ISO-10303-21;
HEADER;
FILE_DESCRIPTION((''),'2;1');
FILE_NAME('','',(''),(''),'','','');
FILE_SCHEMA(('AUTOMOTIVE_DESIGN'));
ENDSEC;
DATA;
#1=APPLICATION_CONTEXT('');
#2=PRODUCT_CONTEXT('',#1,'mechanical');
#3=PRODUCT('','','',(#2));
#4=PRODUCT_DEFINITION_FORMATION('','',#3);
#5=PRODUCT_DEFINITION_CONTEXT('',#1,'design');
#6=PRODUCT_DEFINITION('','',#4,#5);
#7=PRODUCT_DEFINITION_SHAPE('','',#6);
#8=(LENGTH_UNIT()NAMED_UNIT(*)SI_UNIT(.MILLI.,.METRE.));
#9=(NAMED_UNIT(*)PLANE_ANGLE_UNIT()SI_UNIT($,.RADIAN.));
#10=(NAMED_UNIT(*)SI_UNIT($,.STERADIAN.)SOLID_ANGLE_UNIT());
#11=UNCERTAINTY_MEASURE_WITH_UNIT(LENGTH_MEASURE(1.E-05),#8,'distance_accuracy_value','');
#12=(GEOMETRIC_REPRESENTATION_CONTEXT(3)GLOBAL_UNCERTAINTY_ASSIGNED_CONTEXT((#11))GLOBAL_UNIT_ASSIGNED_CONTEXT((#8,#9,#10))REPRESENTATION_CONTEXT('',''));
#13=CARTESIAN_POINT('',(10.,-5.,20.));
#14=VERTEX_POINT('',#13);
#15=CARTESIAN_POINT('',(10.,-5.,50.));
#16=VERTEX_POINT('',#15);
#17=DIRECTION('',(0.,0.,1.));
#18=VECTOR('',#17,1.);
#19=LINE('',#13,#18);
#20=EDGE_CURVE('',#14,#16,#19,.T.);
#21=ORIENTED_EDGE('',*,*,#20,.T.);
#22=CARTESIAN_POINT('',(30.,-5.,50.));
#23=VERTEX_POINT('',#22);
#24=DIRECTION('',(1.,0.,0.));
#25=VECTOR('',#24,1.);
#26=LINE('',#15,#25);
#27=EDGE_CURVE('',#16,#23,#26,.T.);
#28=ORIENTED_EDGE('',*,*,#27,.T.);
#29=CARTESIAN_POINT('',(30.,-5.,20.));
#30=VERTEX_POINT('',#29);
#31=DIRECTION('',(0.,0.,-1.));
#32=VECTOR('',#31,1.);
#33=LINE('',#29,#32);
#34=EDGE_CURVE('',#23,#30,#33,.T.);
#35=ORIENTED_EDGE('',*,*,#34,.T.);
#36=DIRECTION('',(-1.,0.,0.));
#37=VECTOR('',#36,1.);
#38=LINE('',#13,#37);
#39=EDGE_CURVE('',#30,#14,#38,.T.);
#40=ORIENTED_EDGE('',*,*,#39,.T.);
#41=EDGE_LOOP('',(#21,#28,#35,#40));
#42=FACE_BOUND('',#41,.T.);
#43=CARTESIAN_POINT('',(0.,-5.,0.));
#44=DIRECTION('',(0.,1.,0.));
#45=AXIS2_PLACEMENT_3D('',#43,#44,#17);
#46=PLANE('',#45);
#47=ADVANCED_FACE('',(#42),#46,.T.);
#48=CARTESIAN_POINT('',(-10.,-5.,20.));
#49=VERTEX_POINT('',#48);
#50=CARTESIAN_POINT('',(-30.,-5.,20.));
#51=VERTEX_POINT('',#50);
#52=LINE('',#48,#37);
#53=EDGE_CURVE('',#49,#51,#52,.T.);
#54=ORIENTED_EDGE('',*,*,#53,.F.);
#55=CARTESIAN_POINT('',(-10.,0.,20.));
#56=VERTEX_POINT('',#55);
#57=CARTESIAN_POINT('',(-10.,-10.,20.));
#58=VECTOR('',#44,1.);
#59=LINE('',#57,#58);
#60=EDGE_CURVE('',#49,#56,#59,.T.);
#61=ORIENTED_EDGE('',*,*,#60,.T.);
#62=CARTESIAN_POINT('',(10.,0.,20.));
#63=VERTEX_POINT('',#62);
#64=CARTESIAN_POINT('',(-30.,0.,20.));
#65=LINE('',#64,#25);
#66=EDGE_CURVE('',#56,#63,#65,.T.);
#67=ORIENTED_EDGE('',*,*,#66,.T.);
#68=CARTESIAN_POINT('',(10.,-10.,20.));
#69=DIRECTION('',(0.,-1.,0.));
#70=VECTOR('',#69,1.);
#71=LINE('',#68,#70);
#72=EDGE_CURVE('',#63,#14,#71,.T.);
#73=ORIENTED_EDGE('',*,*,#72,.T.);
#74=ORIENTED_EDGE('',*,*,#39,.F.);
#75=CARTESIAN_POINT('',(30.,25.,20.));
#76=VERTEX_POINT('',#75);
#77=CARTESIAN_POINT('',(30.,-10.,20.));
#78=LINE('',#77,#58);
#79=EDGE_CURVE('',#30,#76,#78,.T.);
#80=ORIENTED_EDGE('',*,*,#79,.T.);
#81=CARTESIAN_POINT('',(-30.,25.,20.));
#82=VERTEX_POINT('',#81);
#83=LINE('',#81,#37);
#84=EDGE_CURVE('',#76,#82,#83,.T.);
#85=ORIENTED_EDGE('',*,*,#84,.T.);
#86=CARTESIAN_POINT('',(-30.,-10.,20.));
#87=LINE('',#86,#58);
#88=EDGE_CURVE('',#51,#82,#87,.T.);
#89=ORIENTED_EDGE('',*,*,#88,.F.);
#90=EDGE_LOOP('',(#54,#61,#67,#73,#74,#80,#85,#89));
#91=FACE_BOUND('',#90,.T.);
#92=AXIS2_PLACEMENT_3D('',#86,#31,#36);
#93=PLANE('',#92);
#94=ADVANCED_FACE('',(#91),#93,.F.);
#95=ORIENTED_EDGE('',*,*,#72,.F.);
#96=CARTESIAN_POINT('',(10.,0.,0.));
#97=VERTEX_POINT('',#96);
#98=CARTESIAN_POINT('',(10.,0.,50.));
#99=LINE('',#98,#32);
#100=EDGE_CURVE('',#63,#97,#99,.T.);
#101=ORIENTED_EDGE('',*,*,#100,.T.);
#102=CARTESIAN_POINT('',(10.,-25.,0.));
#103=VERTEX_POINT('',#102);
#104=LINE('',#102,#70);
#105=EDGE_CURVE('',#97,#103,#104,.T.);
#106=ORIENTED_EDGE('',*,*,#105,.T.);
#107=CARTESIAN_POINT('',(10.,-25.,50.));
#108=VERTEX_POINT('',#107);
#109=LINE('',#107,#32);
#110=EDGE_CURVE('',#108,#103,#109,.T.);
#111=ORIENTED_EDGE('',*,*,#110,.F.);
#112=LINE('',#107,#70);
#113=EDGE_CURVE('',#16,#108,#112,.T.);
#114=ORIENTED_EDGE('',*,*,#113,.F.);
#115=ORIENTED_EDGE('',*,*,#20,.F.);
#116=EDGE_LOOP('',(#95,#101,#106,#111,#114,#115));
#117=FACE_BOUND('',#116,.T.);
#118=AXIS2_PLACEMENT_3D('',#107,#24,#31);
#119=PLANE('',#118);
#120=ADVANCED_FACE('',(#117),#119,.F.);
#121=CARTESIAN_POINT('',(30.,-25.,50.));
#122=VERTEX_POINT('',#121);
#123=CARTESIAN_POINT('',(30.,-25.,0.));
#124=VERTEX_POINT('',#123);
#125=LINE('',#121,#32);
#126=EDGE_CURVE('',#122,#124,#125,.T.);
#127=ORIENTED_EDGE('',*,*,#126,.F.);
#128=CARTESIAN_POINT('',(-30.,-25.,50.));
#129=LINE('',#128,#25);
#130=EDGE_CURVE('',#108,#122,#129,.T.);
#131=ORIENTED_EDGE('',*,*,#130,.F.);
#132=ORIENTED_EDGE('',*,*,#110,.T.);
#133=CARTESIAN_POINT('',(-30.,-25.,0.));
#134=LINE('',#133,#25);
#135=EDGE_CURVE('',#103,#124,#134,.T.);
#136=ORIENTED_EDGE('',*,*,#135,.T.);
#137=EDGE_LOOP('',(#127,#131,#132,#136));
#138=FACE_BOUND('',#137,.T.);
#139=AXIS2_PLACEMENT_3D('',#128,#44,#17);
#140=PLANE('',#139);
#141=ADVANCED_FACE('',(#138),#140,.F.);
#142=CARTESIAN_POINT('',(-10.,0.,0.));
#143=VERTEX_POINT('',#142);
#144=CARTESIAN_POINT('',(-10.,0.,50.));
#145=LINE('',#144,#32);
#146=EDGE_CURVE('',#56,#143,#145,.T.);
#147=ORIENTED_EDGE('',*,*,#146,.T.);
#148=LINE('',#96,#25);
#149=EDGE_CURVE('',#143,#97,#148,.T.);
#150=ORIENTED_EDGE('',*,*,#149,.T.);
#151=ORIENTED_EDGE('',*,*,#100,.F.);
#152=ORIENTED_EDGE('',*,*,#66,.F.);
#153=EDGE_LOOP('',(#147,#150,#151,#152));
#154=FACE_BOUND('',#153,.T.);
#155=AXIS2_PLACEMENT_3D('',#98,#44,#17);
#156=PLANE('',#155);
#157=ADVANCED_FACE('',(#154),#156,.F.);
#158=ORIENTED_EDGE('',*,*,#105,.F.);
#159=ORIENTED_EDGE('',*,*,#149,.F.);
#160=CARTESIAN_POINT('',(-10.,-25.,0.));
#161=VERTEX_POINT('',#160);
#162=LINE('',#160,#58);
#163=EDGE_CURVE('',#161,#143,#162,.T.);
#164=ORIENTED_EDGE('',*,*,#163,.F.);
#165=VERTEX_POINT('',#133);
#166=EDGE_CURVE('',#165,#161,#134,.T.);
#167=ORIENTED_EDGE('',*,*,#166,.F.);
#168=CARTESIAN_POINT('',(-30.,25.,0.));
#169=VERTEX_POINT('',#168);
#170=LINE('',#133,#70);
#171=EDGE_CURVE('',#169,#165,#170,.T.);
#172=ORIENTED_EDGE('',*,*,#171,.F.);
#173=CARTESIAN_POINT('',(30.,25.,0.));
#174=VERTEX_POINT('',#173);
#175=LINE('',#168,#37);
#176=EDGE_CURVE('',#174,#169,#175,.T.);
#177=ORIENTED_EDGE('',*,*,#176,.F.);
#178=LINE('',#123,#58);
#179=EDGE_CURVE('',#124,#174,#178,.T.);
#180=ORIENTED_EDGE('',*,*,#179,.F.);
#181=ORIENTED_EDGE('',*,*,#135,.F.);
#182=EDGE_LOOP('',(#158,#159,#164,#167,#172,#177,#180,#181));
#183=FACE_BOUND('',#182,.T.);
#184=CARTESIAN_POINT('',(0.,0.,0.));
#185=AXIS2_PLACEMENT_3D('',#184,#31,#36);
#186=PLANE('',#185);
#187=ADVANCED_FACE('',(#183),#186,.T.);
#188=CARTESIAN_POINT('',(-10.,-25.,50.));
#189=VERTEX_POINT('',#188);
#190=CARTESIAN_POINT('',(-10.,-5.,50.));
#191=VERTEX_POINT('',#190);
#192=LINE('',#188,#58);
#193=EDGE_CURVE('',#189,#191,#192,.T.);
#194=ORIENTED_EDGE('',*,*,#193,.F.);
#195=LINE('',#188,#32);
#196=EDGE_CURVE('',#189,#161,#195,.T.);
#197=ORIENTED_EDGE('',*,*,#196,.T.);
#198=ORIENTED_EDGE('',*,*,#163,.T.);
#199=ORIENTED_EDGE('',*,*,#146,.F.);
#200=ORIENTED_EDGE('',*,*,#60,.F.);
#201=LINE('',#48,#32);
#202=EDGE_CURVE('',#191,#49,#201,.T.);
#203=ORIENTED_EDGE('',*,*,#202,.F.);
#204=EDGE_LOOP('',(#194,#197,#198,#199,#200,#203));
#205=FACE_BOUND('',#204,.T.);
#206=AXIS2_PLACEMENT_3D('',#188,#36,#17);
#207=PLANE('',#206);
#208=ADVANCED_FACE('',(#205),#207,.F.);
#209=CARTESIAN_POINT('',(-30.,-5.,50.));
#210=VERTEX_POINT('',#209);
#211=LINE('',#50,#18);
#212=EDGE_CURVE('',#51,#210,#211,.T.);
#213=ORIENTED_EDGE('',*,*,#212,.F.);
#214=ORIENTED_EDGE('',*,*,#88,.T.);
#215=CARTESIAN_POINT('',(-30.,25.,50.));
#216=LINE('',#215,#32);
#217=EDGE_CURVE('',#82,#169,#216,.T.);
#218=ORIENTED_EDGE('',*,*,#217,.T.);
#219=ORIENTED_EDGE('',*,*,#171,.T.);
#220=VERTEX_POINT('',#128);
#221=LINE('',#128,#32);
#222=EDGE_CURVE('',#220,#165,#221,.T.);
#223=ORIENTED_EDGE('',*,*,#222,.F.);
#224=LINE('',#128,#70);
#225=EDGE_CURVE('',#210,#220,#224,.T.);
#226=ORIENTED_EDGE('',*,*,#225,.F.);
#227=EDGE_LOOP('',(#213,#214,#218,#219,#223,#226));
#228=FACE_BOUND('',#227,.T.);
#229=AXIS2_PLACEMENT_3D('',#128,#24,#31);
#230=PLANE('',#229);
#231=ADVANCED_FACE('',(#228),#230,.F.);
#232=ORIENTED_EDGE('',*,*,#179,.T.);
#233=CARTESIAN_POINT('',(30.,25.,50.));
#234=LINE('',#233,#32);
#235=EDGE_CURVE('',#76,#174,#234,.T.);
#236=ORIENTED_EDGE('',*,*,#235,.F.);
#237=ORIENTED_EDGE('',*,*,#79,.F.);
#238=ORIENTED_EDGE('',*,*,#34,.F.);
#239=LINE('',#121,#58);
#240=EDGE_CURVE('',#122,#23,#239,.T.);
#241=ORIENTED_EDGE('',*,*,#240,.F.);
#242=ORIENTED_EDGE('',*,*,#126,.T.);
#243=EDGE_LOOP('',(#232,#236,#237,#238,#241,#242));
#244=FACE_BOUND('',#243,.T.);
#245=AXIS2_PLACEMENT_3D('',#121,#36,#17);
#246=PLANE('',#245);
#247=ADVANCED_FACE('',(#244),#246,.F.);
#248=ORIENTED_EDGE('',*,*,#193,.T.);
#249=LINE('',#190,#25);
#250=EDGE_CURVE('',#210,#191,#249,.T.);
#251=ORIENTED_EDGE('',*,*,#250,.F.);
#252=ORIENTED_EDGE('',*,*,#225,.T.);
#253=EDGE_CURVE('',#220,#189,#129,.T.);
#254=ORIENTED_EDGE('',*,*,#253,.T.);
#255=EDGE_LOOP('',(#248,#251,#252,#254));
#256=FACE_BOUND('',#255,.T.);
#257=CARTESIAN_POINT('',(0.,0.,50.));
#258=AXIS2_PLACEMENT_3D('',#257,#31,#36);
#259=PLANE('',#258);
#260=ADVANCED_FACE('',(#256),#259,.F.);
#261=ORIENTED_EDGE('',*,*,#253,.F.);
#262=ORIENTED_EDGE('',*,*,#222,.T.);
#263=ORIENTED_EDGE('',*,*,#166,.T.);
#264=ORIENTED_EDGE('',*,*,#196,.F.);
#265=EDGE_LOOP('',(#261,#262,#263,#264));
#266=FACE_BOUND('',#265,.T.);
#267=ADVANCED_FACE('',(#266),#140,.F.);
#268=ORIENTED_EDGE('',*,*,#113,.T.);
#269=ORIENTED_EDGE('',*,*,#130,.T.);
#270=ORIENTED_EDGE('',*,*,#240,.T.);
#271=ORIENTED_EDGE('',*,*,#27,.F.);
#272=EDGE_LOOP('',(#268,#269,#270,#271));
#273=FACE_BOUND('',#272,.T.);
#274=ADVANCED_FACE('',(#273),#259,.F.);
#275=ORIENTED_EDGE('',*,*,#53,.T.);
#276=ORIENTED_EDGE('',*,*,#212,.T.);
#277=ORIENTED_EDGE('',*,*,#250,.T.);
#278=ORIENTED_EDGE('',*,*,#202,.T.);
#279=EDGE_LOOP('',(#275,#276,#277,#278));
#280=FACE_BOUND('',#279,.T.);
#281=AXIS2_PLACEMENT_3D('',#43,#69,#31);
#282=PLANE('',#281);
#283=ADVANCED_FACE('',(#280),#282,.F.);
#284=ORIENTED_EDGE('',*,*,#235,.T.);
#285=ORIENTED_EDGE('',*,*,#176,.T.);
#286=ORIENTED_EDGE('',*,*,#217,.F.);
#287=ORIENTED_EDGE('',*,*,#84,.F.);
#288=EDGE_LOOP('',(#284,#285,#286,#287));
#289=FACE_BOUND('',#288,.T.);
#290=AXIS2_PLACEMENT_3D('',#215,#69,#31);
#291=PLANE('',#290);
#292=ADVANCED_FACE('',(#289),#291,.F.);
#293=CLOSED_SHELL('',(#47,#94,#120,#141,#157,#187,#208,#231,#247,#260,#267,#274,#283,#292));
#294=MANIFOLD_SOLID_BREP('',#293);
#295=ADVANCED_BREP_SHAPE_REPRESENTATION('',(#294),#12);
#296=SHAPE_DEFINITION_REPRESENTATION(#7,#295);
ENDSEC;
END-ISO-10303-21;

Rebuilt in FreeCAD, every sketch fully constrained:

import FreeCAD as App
import Part
import Sketcher

V = App.Vector
Q = App.Units.Quantity

doc = App.newDocument("Part")
body = doc.addObject("PartDesign::Body", "Body")

sketch1 = body.newObject("Sketcher::SketchObject", "Sketch")
sketch1.AttachmentSupport = (doc.getObject("XY_Plane"), [""])
sketch1.MapMode = "FlatFace"
sketch1.addGeometry([
    Part.LineSegment(V(-30, 25, 0), V(-30, -25, 0)),
    Part.LineSegment(V(-30, -25, 0), V(30, -25, 0)),
    Part.LineSegment(V(30, -25, 0), V(30, 25, 0)),
    Part.LineSegment(V(30, 25, 0), V(-30, 25, 0)),
], False)
sketch1.addConstraint([
    Sketcher.Constraint("Coincident", 0, 2, 1, 1),
    Sketcher.Constraint("Coincident", 1, 2, 2, 1),
    Sketcher.Constraint("Coincident", 2, 2, 3, 1),
    Sketcher.Constraint("Coincident", 3, 2, 0, 1),
    Sketcher.Constraint("Vertical", 0),
    Sketcher.Constraint("Horizontal", 1),
    Sketcher.Constraint("Vertical", 2),
    Sketcher.Constraint("Horizontal", 3),
    Sketcher.Constraint("Symmetric", 0, 2, 2, 2, -1, 1),
    Sketcher.Constraint("DistanceX", 1, 1, 1, 2, Q("60 mm")),
    Sketcher.Constraint("DistanceY", 0, 2, 0, 1, Q("50 mm")),
])
pad1 = body.newObject("PartDesign::Pad", "Pad")
pad1.Profile = sketch1
pad1.Length = 50

sketch2 = body.newObject("Sketcher::SketchObject", "Sketch001")
sketch2.AttachmentSupport = (doc.getObject("XZ_Plane"), [""])
sketch2.MapMode = "FlatFace"
sketch2.AttachmentOffset = App.Placement(V(0, 0, -25), App.Rotation())
sketch2.addGeometry([
    Part.LineSegment(V(-30, 20, 0), V(-30, 50, 0)),
    Part.LineSegment(V(-30, 50, 0), V(30, 50, 0)),
    Part.LineSegment(V(30, 50, 0), V(30, 20, 0)),
    Part.LineSegment(V(30, 20, 0), V(-30, 20, 0)),
], False)
sketch2.addConstraint([
    Sketcher.Constraint("Coincident", 0, 2, 1, 1),
    Sketcher.Constraint("Coincident", 1, 2, 2, 1),
    Sketcher.Constraint("Coincident", 2, 2, 3, 1),
    Sketcher.Constraint("Coincident", 3, 2, 0, 1),
    Sketcher.Constraint("Vertical", 0),
    Sketcher.Constraint("Horizontal", 1),
    Sketcher.Constraint("Vertical", 2),
    Sketcher.Constraint("Horizontal", 3),
    Sketcher.Constraint("DistanceX", 1, 1, 1, 2, Q("60 mm")),
    Sketcher.Constraint("DistanceY", 0, 1, 0, 2, Q("30 mm")),
    Sketcher.Constraint("DistanceX", 0, 2, -1, 1, Q("30 mm")),
    Sketcher.Constraint("DistanceY", -1, 1, 0, 2, Q("50 mm")),
])
pocket1 = body.newObject("PartDesign::Pocket", "Pocket")
pocket1.Profile = sketch2
pocket1.Length = 35
pocket1.Reversed = True

sketch3 = body.newObject("Sketcher::SketchObject", "Sketch002")
sketch3.AttachmentSupport = (doc.getObject("XY_Plane"), [""])
sketch3.MapMode = "FlatFace"
sketch3.addGeometry([
    Part.LineSegment(V(10, 0, 0), V(10, -25, 0)),
    Part.LineSegment(V(10, -25, 0), V(-10, -25, 0)),
    Part.LineSegment(V(-10, -25, 0), V(-10, 0, 0)),
    Part.LineSegment(V(-10, 0, 0), V(10, 0, 0)),
], False)
sketch3.addConstraint([
    Sketcher.Constraint("Coincident", 0, 2, 1, 1),
    Sketcher.Constraint("Coincident", 1, 2, 2, 1),
    Sketcher.Constraint("Coincident", 2, 2, 3, 1),
    Sketcher.Constraint("Coincident", 3, 2, 0, 1),
    Sketcher.Constraint("Vertical", 0),
    Sketcher.Constraint("Horizontal", 1),
    Sketcher.Constraint("Vertical", 2),
    Sketcher.Constraint("Horizontal", 3),
    Sketcher.Constraint("Symmetric", 2, 2, 3, 2, -1, 1),
    Sketcher.Constraint("DistanceX", 1, 2, 1, 1, Q("20 mm")),
    Sketcher.Constraint("DistanceY", 0, 2, 0, 1, Q("25 mm")),
])
pocket2 = body.newObject("PartDesign::Pocket", "Pocket001")
pocket2.Profile = sketch3
pocket2.Length = 50
pocket2.Reversed = True

sketch4 = body.newObject("Sketcher::SketchObject", "Sketch003")
sketch4.AttachmentSupport = (doc.getObject("XZ_Plane"), [""])
sketch4.MapMode = "FlatFace"
sketch4.AttachmentOffset = App.Placement(V(0, 0, 10), App.Rotation())
sketch4.addGeometry([
    Part.LineSegment(V(10, 20, 0), V(10, 50, 0)),
    Part.LineSegment(V(10, 50, 0), V(30, 50, 0)),
    Part.LineSegment(V(30, 50, 0), V(30, 20, 0)),
    Part.LineSegment(V(30, 20, 0), V(10, 20, 0)),
    Part.LineSegment(V(-30, 20, 0), V(-30, 50, 0)),
    Part.LineSegment(V(-30, 50, 0), V(-10, 50, 0)),
    Part.LineSegment(V(-10, 50, 0), V(-10, 20, 0)),
    Part.LineSegment(V(-10, 20, 0), V(-30, 20, 0)),
], False)
sketch4.addConstraint([
    Sketcher.Constraint("Coincident", 0, 2, 1, 1),
    Sketcher.Constraint("Coincident", 1, 2, 2, 1),
    Sketcher.Constraint("Coincident", 2, 2, 3, 1),
    Sketcher.Constraint("Coincident", 3, 2, 0, 1),
    Sketcher.Constraint("Coincident", 4, 2, 5, 1),
    Sketcher.Constraint("Coincident", 5, 2, 6, 1),
    Sketcher.Constraint("Coincident", 6, 2, 7, 1),
    Sketcher.Constraint("Coincident", 7, 2, 4, 1),
    Sketcher.Constraint("Vertical", 0),
    Sketcher.Constraint("Horizontal", 1),
    Sketcher.Constraint("Vertical", 2),
    Sketcher.Constraint("Horizontal", 3),
    Sketcher.Constraint("Vertical", 4),
    Sketcher.Constraint("Horizontal", 5),
    Sketcher.Constraint("Vertical", 6),
    Sketcher.Constraint("Horizontal", 7),
    Sketcher.Constraint("Symmetric", 1, 2, 4, 2, -2),
    Sketcher.Constraint("Symmetric", 3, 2, 6, 2, -2),
    Sketcher.Constraint("DistanceX", 1, 1, 1, 2, Q("20 mm")),
    Sketcher.Constraint("DistanceY", 0, 1, 0, 2, Q("30 mm")),
    Sketcher.Constraint("DistanceX", -1, 1, 0, 2, Q("10 mm")),
    Sketcher.Constraint("DistanceY", -1, 1, 0, 2, Q("50 mm")),
])
pad2 = body.newObject("PartDesign::Pad", "Pad001")
pad2.Profile = sketch4
pad2.Length = 5
pad2.Reversed = True

doc.recompute()
